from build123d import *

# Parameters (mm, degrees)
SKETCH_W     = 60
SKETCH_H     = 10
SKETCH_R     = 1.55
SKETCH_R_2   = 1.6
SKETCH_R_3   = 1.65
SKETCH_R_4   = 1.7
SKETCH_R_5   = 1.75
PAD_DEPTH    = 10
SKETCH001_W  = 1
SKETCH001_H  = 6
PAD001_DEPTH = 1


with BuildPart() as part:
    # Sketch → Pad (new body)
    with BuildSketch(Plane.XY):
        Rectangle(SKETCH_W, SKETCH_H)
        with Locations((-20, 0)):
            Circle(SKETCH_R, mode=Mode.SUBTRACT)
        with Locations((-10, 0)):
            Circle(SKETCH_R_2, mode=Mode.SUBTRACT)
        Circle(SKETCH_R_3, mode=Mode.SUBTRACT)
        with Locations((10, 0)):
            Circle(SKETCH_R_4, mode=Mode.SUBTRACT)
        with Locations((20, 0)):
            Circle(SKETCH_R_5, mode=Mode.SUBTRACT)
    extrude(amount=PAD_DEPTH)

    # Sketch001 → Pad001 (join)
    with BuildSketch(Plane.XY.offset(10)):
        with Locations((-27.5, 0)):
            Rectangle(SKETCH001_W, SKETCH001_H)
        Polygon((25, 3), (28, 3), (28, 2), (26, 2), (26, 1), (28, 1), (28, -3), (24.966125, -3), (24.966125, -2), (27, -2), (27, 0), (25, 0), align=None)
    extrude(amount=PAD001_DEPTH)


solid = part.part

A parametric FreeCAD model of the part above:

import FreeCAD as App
import Part
import Sketcher
from FreeCAD import Vector
Q = App.Units.Quantity


def add_polygon(sketch, points):
    """Adds a closed chain of lines whose ends are joined by coincident constraints."""
    first, n = sketch.GeometryCount, len(points)
    for a, b in zip(points, points[1:] + points[:1]):
        sketch.addGeometry(Part.LineSegment(App.Vector(*a, 0), App.Vector(*b, 0)), False)
    for i in range(n):
        sketch.addConstraint(Sketcher.Constraint("Coincident", first + i, 2, first + (i + 1) % n, 1))

doc = App.newDocument("Part")
params = doc.addObject("Spreadsheet::Sheet", "Params")
for row, (alias, value) in enumerate([
    ("sketch1_diameter", "3.1 mm"),
    ("sketch1_diameter2", "3.2 mm"),
    ("sketch1_diameter3", "3.3 mm"),
    ("sketch1_diameter4", "3.4 mm"),
    ("sketch1_diameter5", "3.5 mm"),
    ("pad1_length", "10 mm"),
    ("sketch2_width", "1 mm"),
    ("sketch2_width2", "3 mm"),
    ("pad2_length", "1 mm"),
], start=1):
    params.set(f"A{row}", alias)
    params.set(f"B{row}", "=" + value)
    params.setAlias(f"B{row}", alias)

body = doc.addObject("PartDesign::Body", "Body")

# Sketch on XY plane
sketch1 = body.newObject("Sketcher::SketchObject", "Sketch")
sketch1.AttachmentSupport = (doc.getObject("XY_Plane"), [""])
sketch1.MapMode = "FlatFace"
add_polygon(sketch1, [(-30, 5), (-30, -5), (30, -5), (30, 5)])  # lines 0-3
sketch1.addGeometry(Part.Circle(Vector(-20, 0, 0), Vector(0, 0, 1), 1.55), False)  # 4
sketch1.addGeometry(Part.Circle(Vector(-10, 0, 0), Vector(0, 0, 1), 1.6), False)  # 5
sketch1.addGeometry(Part.Circle(Vector(0, 0, 0), Vector(0, 0, 1), 1.65), False)  # 6
sketch1.addGeometry(Part.Circle(Vector(10, 0, 0), Vector(0, 0, 1), 1.7), False)  # 7
sketch1.addGeometry(Part.Circle(Vector(20, 0, 0), Vector(0, 0, 1), 1.75), False)  # 8
sketch1.addConstraint([
    Sketcher.Constraint("Vertical", 0),
    Sketcher.Constraint("Horizontal", 1),
    Sketcher.Constraint("Vertical", 2),
    Sketcher.Constraint("Horizontal", 3),
    Sketcher.Constraint("Coincident", 6, 3, -1, 1),
    Sketcher.Constraint("Symmetric", 5, 3, 7, 3, -1, 1),
    Sketcher.Constraint("Symmetric", 4, 3, 8, 3, -1, 1),
    Sketcher.Constraint("Symmetric", 0, 2, 2, 2, -1, 1),
    Sketcher.Constraint("PointOnObject", 4, 3, -1),
    Sketcher.Constraint("PointOnObject", 5, 3, -1),
    Sketcher.Constraint("Diameter", 4, Q("3.1 mm")),
    Sketcher.Constraint("Diameter", 5, Q("3.2 mm")),
    Sketcher.Constraint("Diameter", 6, Q("3.3 mm")),
    Sketcher.Constraint("Diameter", 7, Q("3.4 mm")),
    Sketcher.Constraint("Diameter", 8, Q("3.5 mm")),
    Sketcher.Constraint("DistanceX", 1, 1, 1, 2, Q("60 mm")),
    Sketcher.Constraint("DistanceY", 0, 2, 0, 1, Q("10 mm")),
    Sketcher.Constraint("DistanceX", 4, 3, -1, 1, Q("20 mm")),
    Sketcher.Constraint("DistanceX", 5, 3, -1, 1, Q("10 mm")),
])
sketch1.setExpression("Constraints[14]", "Params.sketch1_diameter")
sketch1.setExpression("Constraints[15]", "Params.sketch1_diameter2")
sketch1.setExpression("Constraints[16]", "Params.sketch1_diameter3")
sketch1.setExpression("Constraints[17]", "Params.sketch1_diameter4")
sketch1.setExpression("Constraints[18]", "Params.sketch1_diameter5")
pad1 = body.newObject("PartDesign::Pad", "Pad")
pad1.Profile = sketch1
pad1.setExpression("Length", "Params.pad1_length")

# Sketch on XY plane
sketch2 = body.newObject("Sketcher::SketchObject", "Sketch001")
sketch2.AttachmentSupport = (doc.getObject("XY_Plane"), [""])
sketch2.MapMode = "FlatFace"
sketch2.AttachmentOffset = App.Placement(Vector(0, 0, 10), App.Rotation())
add_polygon(sketch2, [(-28, 3), (-28, -3), (-27, -3), (-27, 3)])  # lines 0-3
add_polygon(sketch2, [(28, 3), (25, 3), (25, 0), (27, 0), (27, -2), (24.966125, -2), (24.966125, -3), (28, -3), (28, 1), (26, 1), (26, 2), (28, 2)])  # lines 4-15
sketch2.addConstraint([
    Sketcher.Constraint("Vertical", 0),
    Sketcher.Constraint("Horizontal", 1),
    Sketcher.Constraint("Vertical", 2),
    Sketcher.Constraint("Horizontal", 3),
    Sketcher.Constraint("Horizontal", 4),
    Sketcher.Constraint("Vertical", 5),
    Sketcher.Constraint("Horizontal", 6),
    Sketcher.Constraint("Vertical", 7),
    Sketcher.Constraint("Horizontal", 8),
    Sketcher.Constraint("Vertical", 9),
    Sketcher.Constraint("Horizontal", 10),
    Sketcher.Constraint("Vertical", 11),
    Sketcher.Constraint("Horizontal", 12),
    Sketcher.Constraint("Vertical", 13),
    Sketcher.Constraint("Horizontal", 14),
    Sketcher.Constraint("Vertical", 15),
    Sketcher.Constraint("Symmetric", 3, 2, 10, 2, -1, 1),
    Sketcher.Constraint("Symmetric", 0, 2, 15, 2, -1, 1),
    Sketcher.Constraint("PointOnObject", 5, 2, -1),
    Sketcher.Constraint("Horizontal", 3, 2, 4, 2),
    Sketcher.Constraint("Equal", 6, 12),
    Sketcher.Constraint("Equal", 4, 5),
    Sketcher.Constraint("Equal", 14, 7),
    Sketcher.Constraint("Equal", 3, 9),
    Sketcher.Constraint("Equal", 9, 13),
    Sketcher.Constraint("Equal", 13, 15),
    Sketcher.Constraint("DistanceX", 1, 1, 1, 2, Q("1 mm")),
    Sketcher.Constraint("DistanceX", 4, 2, 4, 1, Q("3 mm")),
    Sketcher.Constraint("DistanceX", 0, 2, -1, 1, Q("28 mm")),
    Sketcher.Constraint("DistanceX", 8, 2, 8, 1, Q("2.033875 mm")),
])
sketch2.setExpression("Constraints[42]", "Params.sketch2_width")
sketch2.setExpression("Constraints[43]", "Params.sketch2_width2")
pad2 = body.newObject("PartDesign::Pad", "Pad001")
pad2.Profile = sketch2
pad2.setExpression("Length", "Params.pad2_length")

doc.recompute()
